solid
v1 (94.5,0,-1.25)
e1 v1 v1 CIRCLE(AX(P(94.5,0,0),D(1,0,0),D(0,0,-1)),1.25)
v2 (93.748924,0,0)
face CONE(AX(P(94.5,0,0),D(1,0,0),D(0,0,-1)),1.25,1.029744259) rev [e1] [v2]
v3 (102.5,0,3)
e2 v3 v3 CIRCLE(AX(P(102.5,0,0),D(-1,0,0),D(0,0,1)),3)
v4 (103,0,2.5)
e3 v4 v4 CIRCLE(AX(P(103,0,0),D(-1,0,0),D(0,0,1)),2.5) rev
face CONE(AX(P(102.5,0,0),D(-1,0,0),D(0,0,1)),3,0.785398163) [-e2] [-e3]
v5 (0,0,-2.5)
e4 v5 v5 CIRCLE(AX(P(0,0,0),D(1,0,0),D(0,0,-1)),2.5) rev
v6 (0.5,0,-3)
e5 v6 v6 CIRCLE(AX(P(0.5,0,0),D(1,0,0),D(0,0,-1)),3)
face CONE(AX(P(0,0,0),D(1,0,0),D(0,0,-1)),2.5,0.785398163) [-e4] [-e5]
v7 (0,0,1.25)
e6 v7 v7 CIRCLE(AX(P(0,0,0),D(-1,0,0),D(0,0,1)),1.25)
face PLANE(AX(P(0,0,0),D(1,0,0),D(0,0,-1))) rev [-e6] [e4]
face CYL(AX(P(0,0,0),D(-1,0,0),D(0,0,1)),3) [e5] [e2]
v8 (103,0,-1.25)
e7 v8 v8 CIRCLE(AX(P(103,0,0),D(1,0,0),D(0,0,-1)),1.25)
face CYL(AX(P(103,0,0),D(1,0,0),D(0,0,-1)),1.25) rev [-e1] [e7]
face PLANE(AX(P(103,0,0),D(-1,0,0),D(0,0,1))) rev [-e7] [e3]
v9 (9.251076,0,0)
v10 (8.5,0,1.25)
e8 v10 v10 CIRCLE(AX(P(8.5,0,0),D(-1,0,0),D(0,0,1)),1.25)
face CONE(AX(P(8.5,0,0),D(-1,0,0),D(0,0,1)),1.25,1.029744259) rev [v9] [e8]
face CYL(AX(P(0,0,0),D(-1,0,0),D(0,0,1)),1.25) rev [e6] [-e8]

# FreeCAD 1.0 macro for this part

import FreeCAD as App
import Part
import Sketcher


def edges_at(feature, points):
    """Names of the edges that pass closest to the given points."""
    edges = feature.Shape.Edges
    near = lambda p: min(range(len(edges)), key=lambda i: edges[i].distToShape(Part.Vertex(*p))[0])
    return sorted({f"Edge{near(p) + 1}" for p in points})


def add_polygon(sketch, points):
    """Adds a closed chain of lines whose ends are joined by coincident constraints."""
    first, n = sketch.GeometryCount, len(points)
    for a, b in zip(points, points[1:] + points[:1]):
        sketch.addGeometry(Part.LineSegment(App.Vector(*a, 0), App.Vector(*b, 0)), False)
    for i in range(n):
        sketch.addConstraint(Sketcher.Constraint("Coincident", first + i, 2, first + (i + 1) % n, 1))

doc = App.newDocument("Part")
params = doc.addObject("Spreadsheet::Sheet", "Params")
for row, (alias, value) in enumerate([
    ("sketch1_width", "103 mm"),
    ("sketch1_height", "3 mm"),
    ("revolution_angle", "360 deg"),
    ("sketch2_diameter", "2.5 mm"),
    ("hole_diameter", "2.5 mm"),
    ("hole_depth", "8.5 mm"),
    ("sketch3_diameter", "2.5 mm"),
    ("hole2_diameter", "2.5 mm"),
    ("hole2_depth", "8.5 mm"),
    ("chamfer_size", "0.5 mm"),
], start=1):
    params.set(f"A{row}", alias)
    params.set(f"B{row}", "=" + value)
    params.setAlias(f"B{row}", alias)

body = doc.addObject("PartDesign::Body", "Body")

sketch1 = body.newObject("Sketcher::SketchObject", "Sketch")
sketch1.AttachmentSupport = (doc.getObject("XY_Plane"), [""])
sketch1.MapMode = "FlatFace"
add_polygon(sketch1, [(0, 3), (0, 0), (103, 0), (103, 3)])
sketch1.addConstraint([
    Sketcher.Constraint("Vertical", 0),
    Sketcher.Constraint("Horizontal", 1),
    Sketcher.Constraint("Vertical", 2),
    Sketcher.Constraint("Horizontal", 3),
    Sketcher.Constraint("Coincident", 0, 2, -1, 1),
    Sketcher.Constraint("DistanceX", 1, 1, 1, 2, 103.0),
    Sketcher.Constraint("DistanceY", 0, 2, 0, 1, 3.0),
])
sketch1.setExpression("Constraints[9]", "Params.sketch1_width")
sketch1.setExpression("Constraints[10]", "Params.sketch1_height")
revolution = body.newObject("PartDesign::Revolution", "Revolution")
revolution.Profile = sketch1
revolution.ReferenceAxis = (sketch1, ["H_Axis"])
revolution.setExpression("Angle", "Params.revolution_angle")

sketch2 = body.newObject("Sketcher::SketchObject", "Sketch001")
sketch2.AttachmentSupport = (doc.getObject("YZ_Plane"), [""])
sketch2.MapMode = "FlatFace"
sketch2.addGeometry(Part.Circle(App.Vector(0, 0, 0), App.Vector(0, 0, 1), 1.2), False)
sketch2.addConstraint([
    Sketcher.Constraint("Coincident", 0, 3, -1, 1),
    Sketcher.Constraint("Diameter", 0, 2.5),
])
sketch2.setExpression("Constraints[1]", "Params.sketch2_diameter")
doc.recompute()
hole = body.newObject("PartDesign::Hole", "Hole")
hole.Profile = sketch2
hole.ThreadType = "None"
hole.setExpression("Diameter", "Params.hole_diameter")
hole.DepthType = "Dimension"
hole.setExpression("Depth", "Params.hole_depth")
hole.DrillPoint = "Angled"
hole.DrillPointAngle = 118
hole.Reversed = True

sketch3 = body.newObject("Sketcher::SketchObject", "Sketch002")
sketch3.AttachmentSupport = (doc.getObject("YZ_Plane"), [""])
sketch3.MapMode = "FlatFace"
sketch3.AttachmentOffset = App.Placement(App.Vector(0, 0, 103), App.Rotation())
sketch3.addGeometry(Part.Circle(App.Vector(0, 0, 0), App.Vector(0, 0, 1), 1.2), False)
sketch3.addConstraint([
    Sketcher.Constraint("Coincident", 0, 3, -1, 1),
    Sketcher.Constraint("Diameter", 0, 2.5),
])
sketch3.setExpression("Constraints[1]", "Params.sketch3_diameter")
doc.recompute()
hole2 = body.newObject("PartDesign::Hole", "Hole001")
hole2.Profile = sketch3
hole2.ThreadType = "None"
hole2.setExpression("Diameter", "Params.hole2_diameter")
hole2.DepthType = "Dimension"
hole2.setExpression("Depth", "Params.hole2_depth")
hole2.DrillPoint = "Angled"
hole2.DrillPointAngle = 118
doc.recompute()

chamfer = body.newObject("PartDesign::Chamfer", "Chamfer")
chamfer.Base = (hole2, edges_at(hole2, [(103, 0, -3), (0, 0, -3)]))
chamfer.setExpression("Size", "Params.chamfer_size")

doc.recompute()
